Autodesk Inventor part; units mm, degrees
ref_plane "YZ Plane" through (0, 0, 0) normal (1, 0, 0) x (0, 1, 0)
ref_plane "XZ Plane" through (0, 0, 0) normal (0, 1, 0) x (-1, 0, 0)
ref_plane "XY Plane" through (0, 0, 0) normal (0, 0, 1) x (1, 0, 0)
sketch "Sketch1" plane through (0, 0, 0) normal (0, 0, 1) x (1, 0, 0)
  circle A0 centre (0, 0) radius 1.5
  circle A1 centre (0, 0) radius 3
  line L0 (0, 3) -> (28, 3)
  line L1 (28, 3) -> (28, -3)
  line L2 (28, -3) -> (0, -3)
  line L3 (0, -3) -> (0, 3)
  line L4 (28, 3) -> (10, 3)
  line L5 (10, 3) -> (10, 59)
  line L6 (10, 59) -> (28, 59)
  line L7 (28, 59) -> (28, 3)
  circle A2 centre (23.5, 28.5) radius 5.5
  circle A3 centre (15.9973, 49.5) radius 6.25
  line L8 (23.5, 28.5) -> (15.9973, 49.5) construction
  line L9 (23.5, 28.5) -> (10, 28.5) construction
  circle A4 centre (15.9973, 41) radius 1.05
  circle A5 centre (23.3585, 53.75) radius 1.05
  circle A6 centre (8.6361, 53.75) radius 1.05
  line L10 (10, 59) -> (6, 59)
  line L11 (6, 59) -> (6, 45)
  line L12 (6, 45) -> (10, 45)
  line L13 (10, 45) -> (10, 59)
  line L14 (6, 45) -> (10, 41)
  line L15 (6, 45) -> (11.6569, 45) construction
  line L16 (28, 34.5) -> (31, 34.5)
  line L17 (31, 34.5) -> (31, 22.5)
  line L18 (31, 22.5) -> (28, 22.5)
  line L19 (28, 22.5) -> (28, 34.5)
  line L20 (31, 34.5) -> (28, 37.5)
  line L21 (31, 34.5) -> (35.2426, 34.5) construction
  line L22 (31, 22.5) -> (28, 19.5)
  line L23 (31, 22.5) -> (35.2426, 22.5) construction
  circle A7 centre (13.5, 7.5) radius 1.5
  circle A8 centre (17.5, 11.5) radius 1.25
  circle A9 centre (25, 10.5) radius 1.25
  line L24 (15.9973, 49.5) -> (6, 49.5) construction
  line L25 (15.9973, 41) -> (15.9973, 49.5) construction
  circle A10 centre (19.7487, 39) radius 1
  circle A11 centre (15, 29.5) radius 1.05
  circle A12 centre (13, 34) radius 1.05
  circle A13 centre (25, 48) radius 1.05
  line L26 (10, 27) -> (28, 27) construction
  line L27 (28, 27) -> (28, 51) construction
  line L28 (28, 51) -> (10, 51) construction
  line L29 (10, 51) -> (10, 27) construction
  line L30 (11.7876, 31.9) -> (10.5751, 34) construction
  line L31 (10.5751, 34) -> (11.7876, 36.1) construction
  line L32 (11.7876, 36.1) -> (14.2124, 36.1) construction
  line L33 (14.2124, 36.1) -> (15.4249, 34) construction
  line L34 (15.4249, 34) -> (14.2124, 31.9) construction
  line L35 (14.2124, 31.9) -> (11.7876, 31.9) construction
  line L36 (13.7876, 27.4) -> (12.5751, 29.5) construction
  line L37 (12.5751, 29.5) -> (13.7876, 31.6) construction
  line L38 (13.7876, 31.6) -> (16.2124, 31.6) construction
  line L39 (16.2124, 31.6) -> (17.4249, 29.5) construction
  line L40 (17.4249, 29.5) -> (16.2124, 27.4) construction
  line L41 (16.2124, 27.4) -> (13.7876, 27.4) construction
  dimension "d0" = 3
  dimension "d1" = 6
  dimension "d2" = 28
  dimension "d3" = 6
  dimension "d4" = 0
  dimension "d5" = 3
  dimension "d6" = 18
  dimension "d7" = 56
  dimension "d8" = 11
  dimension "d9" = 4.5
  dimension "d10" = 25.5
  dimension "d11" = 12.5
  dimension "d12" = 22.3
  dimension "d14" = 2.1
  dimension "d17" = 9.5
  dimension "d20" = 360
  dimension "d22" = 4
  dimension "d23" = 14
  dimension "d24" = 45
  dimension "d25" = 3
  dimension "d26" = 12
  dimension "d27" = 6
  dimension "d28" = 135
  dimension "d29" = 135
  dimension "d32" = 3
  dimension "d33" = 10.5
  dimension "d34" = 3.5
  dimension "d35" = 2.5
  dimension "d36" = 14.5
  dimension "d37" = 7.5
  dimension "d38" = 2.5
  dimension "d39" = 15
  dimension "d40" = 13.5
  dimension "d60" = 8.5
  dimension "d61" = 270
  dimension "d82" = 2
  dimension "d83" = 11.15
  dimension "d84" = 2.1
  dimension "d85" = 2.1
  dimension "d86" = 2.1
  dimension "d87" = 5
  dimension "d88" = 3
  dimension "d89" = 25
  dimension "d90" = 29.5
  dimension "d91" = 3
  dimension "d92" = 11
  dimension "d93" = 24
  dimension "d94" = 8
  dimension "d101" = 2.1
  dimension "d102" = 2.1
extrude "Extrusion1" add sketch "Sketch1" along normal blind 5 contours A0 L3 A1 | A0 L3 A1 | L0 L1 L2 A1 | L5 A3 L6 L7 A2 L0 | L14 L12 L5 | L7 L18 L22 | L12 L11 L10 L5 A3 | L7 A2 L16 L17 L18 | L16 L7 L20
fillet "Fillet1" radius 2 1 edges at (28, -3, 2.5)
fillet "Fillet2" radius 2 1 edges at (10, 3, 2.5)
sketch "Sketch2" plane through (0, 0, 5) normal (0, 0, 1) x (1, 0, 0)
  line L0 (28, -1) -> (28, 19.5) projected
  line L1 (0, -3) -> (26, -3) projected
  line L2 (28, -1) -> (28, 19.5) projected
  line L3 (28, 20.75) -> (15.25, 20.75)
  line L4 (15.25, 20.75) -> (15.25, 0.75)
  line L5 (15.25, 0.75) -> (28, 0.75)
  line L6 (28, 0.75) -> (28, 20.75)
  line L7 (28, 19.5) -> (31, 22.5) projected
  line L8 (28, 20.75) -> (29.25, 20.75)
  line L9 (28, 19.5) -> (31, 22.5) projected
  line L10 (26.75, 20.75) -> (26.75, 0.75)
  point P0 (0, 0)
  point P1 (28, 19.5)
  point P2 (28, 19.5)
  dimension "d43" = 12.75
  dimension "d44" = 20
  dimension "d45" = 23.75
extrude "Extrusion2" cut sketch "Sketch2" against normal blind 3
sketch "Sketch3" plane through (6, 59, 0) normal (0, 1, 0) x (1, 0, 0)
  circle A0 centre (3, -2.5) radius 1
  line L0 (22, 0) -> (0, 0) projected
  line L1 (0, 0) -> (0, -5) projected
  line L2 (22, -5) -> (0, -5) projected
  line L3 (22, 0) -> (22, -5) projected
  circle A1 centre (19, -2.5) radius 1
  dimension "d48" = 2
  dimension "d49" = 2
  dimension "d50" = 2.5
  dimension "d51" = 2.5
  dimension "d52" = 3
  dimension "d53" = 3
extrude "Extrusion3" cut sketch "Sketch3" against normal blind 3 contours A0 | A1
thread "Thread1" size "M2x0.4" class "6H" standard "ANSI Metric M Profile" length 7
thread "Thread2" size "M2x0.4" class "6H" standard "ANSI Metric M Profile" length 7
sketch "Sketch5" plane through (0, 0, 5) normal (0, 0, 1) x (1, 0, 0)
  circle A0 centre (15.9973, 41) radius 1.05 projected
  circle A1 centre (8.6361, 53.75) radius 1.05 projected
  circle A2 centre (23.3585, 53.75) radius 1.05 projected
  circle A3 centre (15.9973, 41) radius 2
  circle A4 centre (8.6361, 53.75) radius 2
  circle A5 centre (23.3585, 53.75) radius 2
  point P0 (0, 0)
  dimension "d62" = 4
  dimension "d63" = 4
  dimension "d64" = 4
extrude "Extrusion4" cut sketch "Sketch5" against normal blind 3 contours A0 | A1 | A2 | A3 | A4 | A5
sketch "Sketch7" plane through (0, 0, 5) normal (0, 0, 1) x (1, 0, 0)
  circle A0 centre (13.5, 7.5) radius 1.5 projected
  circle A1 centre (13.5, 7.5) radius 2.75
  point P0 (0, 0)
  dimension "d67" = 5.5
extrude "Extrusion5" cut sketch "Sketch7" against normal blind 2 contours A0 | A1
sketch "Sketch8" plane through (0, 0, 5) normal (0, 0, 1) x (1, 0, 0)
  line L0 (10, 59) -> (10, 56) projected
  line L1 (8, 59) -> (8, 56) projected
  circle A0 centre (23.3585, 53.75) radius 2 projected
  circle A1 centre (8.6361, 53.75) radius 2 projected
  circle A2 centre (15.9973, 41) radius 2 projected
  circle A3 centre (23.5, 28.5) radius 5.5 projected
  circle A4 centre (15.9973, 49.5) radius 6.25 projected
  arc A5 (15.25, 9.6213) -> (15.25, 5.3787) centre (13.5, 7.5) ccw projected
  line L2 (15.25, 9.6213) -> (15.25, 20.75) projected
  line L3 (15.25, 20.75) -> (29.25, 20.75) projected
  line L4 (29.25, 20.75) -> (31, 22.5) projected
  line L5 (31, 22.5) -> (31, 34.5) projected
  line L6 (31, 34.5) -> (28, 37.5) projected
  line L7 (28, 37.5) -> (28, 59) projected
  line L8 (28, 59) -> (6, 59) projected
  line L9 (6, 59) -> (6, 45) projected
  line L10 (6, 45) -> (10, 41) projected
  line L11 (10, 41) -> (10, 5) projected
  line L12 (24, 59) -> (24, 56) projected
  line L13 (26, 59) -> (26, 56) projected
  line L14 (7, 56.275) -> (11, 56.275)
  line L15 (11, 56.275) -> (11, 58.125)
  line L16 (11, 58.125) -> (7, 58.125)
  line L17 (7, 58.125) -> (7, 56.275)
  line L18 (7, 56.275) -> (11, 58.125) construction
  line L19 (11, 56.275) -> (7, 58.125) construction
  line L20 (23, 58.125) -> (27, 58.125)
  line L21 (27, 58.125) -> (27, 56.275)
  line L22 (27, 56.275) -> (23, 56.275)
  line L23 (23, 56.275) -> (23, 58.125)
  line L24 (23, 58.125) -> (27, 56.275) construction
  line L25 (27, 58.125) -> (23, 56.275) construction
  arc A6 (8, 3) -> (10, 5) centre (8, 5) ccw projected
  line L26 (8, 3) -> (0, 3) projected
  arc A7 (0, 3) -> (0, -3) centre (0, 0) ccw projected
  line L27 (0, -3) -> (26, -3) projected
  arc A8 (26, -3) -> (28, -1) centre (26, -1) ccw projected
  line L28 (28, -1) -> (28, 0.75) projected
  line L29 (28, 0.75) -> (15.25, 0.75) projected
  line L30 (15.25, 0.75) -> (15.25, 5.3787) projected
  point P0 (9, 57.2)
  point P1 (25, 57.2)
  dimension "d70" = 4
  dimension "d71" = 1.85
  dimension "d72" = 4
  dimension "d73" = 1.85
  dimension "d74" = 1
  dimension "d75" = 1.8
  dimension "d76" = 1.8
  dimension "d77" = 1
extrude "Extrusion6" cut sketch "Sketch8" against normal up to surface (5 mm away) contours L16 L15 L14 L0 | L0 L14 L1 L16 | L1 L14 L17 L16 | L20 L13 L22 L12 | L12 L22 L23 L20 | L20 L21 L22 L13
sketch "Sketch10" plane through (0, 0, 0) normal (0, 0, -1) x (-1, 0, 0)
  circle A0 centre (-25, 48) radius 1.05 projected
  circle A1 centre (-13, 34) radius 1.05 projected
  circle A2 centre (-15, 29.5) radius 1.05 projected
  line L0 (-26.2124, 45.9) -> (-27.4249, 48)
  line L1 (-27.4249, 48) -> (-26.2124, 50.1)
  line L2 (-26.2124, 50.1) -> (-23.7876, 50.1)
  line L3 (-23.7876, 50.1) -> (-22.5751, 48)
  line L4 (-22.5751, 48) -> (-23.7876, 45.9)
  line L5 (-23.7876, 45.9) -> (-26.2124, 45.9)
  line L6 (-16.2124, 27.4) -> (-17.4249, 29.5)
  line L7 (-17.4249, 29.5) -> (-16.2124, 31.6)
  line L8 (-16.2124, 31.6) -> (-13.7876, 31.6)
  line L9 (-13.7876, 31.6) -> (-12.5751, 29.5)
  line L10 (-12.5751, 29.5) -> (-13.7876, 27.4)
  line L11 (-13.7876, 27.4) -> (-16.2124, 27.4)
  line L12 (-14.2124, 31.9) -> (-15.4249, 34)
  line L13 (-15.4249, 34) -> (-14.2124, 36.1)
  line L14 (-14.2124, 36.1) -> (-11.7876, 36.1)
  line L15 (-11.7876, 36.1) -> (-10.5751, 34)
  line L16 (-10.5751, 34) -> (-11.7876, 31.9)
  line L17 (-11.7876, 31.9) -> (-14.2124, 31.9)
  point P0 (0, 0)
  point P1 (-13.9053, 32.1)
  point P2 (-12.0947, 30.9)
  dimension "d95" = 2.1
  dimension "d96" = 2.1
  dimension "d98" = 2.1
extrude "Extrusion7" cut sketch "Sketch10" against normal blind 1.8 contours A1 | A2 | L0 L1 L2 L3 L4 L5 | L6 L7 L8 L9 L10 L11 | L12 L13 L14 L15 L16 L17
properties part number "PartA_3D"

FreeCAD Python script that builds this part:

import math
import FreeCAD as App
import Part
import Sketcher
from FreeCAD import Vector
Q = App.Units.Quantity


def edges_at(feature, points):
    """Names of the edges that pass closest to the given points."""
    edges = feature.Shape.Edges
    near = lambda p: min(range(len(edges)), key=lambda i: edges[i].distToShape(Part.Vertex(*p))[0])
    return sorted({f"Edge{near(p) + 1}" for p in points})


def add_polygon(sketch, points):
    """Adds a closed chain of lines whose ends are joined by coincident constraints."""
    first, n = sketch.GeometryCount, len(points)
    for a, b in zip(points, points[1:] + points[:1]):
        sketch.addGeometry(Part.LineSegment(App.Vector(*a, 0), App.Vector(*b, 0)), False)
    for i in range(n):
        sketch.addConstraint(Sketcher.Constraint("Coincident", first + i, 2, first + (i + 1) % n, 1))

doc = App.newDocument("Part")
body = doc.addObject("PartDesign::Body", "Body")

# Sketch on XY plane
sketch1 = body.newObject("Sketcher::SketchObject", "Sketch")
sketch1.AttachmentSupport = (doc.getObject("XY_Plane"), [""])
sketch1.MapMode = "FlatFace"
sketch1.addGeometry([
    Part.ArcOfCircle(Part.Circle(Vector(0, 0, 0), Vector(0, 0, 1), 3), math.radians(90), math.radians(270)),  # 0
    Part.LineSegment(Vector(0, -3, 0), Vector(28, -3, 0)),  # 1
    Part.LineSegment(Vector(28, -3, 0), Vector(28, 19.5, 0)),  # 2
    Part.LineSegment(Vector(28, 19.5, 0), Vector(31, 22.5, 0)),  # 3
    Part.LineSegment(Vector(31, 22.5, 0), Vector(31, 34.5, 0)),  # 4
    Part.LineSegment(Vector(31, 34.5, 0), Vector(28, 37.5, 0)),  # 5
    Part.LineSegment(Vector(28, 37.5, 0), Vector(28, 59, 0)),  # 6
    Part.LineSegment(Vector(28, 59, 0), Vector(6, 59, 0)),  # 7
    Part.LineSegment(Vector(6, 59, 0), Vector(6, 45, 0)),  # 8
    Part.LineSegment(Vector(6, 45, 0), Vector(10, 41, 0)),  # 9
    Part.LineSegment(Vector(10, 41, 0), Vector(10, 3, 0)),  # 10
    Part.LineSegment(Vector(10, 3, 0), Vector(0, 3, 0)),  # 11
    Part.Circle(Vector(0, 0, 0), Vector(0, 0, 1), 1.5),  # 12
    Part.Circle(Vector(16, 49.5, 0), Vector(0, 0, 1), 6.2),  # 13
    Part.Circle(Vector(23.5, 28.5, 0), Vector(0, 0, 1), 5.5),  # 14
    Part.Circle(Vector(23.4, 53.8, 0), Vector(0, 0, 1), 1.1),  # 15
    Part.Circle(Vector(13.5, 7.5, 0), Vector(0, 0, 1), 1.5),  # 16
    Part.Circle(Vector(17.5, 11.5, 0), Vector(0, 0, 1), 1.2),  # 17
    Part.Circle(Vector(25, 10.5, 0), Vector(0, 0, 1), 1.2),  # 18
    Part.Circle(Vector(13, 34, 0), Vector(0, 0, 1), 1.1),  # 19
    Part.Circle(Vector(15, 29.5, 0), Vector(0, 0, 1), 1.1),  # 20
    Part.Circle(Vector(16, 41, 0), Vector(0, 0, 1), 1.1),  # 21
    Part.Circle(Vector(19.7, 39, 0), Vector(0, 0, 1), 1),  # 22
    Part.Circle(Vector(25, 48, 0), Vector(0, 0, 1), 1.1),  # 23
    Part.Circle(Vector(8.6, 53.8, 0), Vector(0, 0, 1), 1.1),  # 24
], False)
sketch1.addConstraint([
    Sketcher.Constraint("Tangent", 0, 2, 1, 1),
    Sketcher.Constraint("Coincident", 1, 2, 2, 1),
    Sketcher.Constraint("Coincident", 2, 2, 3, 1),
    Sketcher.Constraint("Coincident", 3, 2, 4, 1),
    Sketcher.Constraint("Coincident", 4, 2, 5, 1),
    Sketcher.Constraint("Coincident", 5, 2, 6, 1),
    Sketcher.Constraint("Coincident", 6, 2, 7, 1),
    Sketcher.Constraint("Coincident", 7, 2, 8, 1),
    Sketcher.Constraint("Coincident", 8, 2, 9, 1),
    Sketcher.Constraint("Coincident", 9, 2, 10, 1),
    Sketcher.Constraint("Coincident", 10, 2, 11, 1),
    Sketcher.Constraint("Tangent", 11, 2, 0, 1),
    Sketcher.Constraint("Horizontal", 1),
    Sketcher.Constraint("Vertical", 2),
    Sketcher.Constraint("Vertical", 4),
    Sketcher.Constraint("Vertical", 6),
    Sketcher.Constraint("Horizontal", 7),
    Sketcher.Constraint("Vertical", 8),
    Sketcher.Constraint("Vertical", 10),
    Sketcher.Constraint("Horizontal", 11),
    Sketcher.Constraint("Coincident", 0, 3, -1, 1),
    Sketcher.Constraint("Coincident", 12, 3, -1, 1),
    Sketcher.Constraint("Equal", 12, 16),
    Sketcher.Constraint("Equal", 17, 18),
    Sketcher.Constraint("Equal", 15, 19),
    Sketcher.Constraint("Equal", 19, 20),
    Sketcher.Constraint("Equal", 20, 21),
    Sketcher.Constraint("Equal", 21, 23),
    Sketcher.Constraint("Equal", 23, 24),
    Sketcher.Constraint("Perpendicular", 3, 5),
    Sketcher.Constraint("Parallel", 5, 9),
    Sketcher.Constraint("Horizontal", 15, 3, 24, 3),
    Sketcher.Constraint("Horizontal", 21, 3, 9, 2),
    Sketcher.Constraint("Vertical", 13, 3, 21, 3),
    Sketcher.Constraint("Vertical", 18, 3, 23, 3),
    Sketcher.Constraint("Vertical", 2, 2, 5, 2),
    Sketcher.Constraint("Equal", 3, 5),
    Sketcher.Constraint("Diameter", 12, Q("3 mm")),
    Sketcher.Constraint("Diameter", 14, Q("11 mm")),
    Sketcher.Constraint("Diameter", 22, Q("2 mm")),
    Sketcher.Constraint("Radius", 0, Q("3 mm")),
    Sketcher.Constraint("Diameter", 13, Q("12.5 mm")),
    Sketcher.Constraint("Diameter", 15, Q("2.1 mm")),
    Sketcher.Constraint("Diameter", 17, Q("2.5 mm")),
    Sketcher.Constraint("DistanceX", 1, 1, 1, 2, Q("28 mm")),
    Sketcher.Constraint("DistanceY", 4, 1, 4, 2, Q("12 mm")),
    Sketcher.Constraint("DistanceY", 8, 2, 8, 1, Q("14 mm")),
    Sketcher.Constraint("DistanceX", -1, 1, 18, 3, Q("25 mm")),
    Sketcher.Constraint("DistanceX", -1, 1, 20, 3, Q("15 mm")),
    Sketcher.Constraint("DistanceX", -1, 1, 7, 2, Q("6 mm")),
    Sketcher.Constraint("DistanceY", -1, 1, 8, 2, Q("45 mm")),
    Sketcher.Constraint("DistanceX", 16, 3, 17, 3, Q("4 mm")),
    Sketcher.Constraint("DistanceY", 16, 3, 17, 3, Q("4 mm")),
    Sketcher.Constraint("DistanceX", 17, 3, 14, 3, Q("6 mm")),
    Sketcher.Constraint("DistanceY", 16, 3, 18, 3, Q("3 mm")),
    Sketcher.Constraint("DistanceY", 18, 3, 14, 3, Q("18 mm")),
    Sketcher.Constraint("DistanceX", 19, 3, 18, 3, Q("12 mm")),
    Sketcher.Constraint("DistanceY", 17, 3, 20, 3, Q("18 mm")),
    Sketcher.Constraint("DistanceY", 22, 3, 21, 3, Q("2 mm")),
    Sketcher.Constraint("DistanceY", 19, 3, 22, 3, Q("5 mm")),
    Sketcher.Constraint("DistanceY", 19, 3, 23, 3, Q("14 mm")),
    Sketcher.Constraint("DistanceY", 17, 3, 2, 2, Q("8 mm")),
    Sketcher.Constraint("DistanceX", 2, 2, 3, 2, Q("3 mm")),
    Sketcher.Constraint("DistanceY", 23, 3, 6, 2, Q("11 mm")),
    Sketcher.Constraint("DistanceX", -1, 1, 16, 3, Q("13.5 mm")),
    Sketcher.Constraint("DistanceY", -1, 1, 16, 3, Q("7.5 mm")),
    Sketcher.Constraint("DistanceY", 21, 3, 13, 3, Q("8.5 mm")),
    Sketcher.Constraint("DistanceY", -1, 1, 15, 3, Q("53.75 mm")),
    Sketcher.Constraint("DistanceX", -1, 1, 24, 3, Q("8.636 mm")),
    Sketcher.Constraint("DistanceX", -1, 1, 13, 3, Q("15.9973 mm")),
    Sketcher.Constraint("DistanceX", -1, 1, 15, 3, Q("23.3585 mm")),
    Sketcher.Constraint("DistanceX", -1, 1, 22, 3, Q("19.7487 mm")),
])
pad1 = body.newObject("PartDesign::Pad", "Pad")
pad1.Profile = sketch1
pad1.Length = 5
doc.recompute()

fillet = body.newObject("PartDesign::Fillet", "Fillet")
fillet.Base = (pad1, edges_at(pad1, [(28, -3, 2.5)]))
fillet.Radius = 2
doc.recompute()

fillet2 = body.newObject("PartDesign::Fillet", "Fillet001")
fillet2.Base = (fillet, edges_at(fillet, [(10, 3, 2.5)]))
fillet2.Radius = 2

# Sketch on XY plane
sketch2 = body.newObject("Sketcher::SketchObject", "Sketch001")
sketch2.AttachmentSupport = (doc.getObject("XY_Plane"), [""])
sketch2.MapMode = "FlatFace"
sketch2.AttachmentOffset = App.Placement(Vector(0, 0, 5), App.Rotation())
add_polygon(sketch2, [(28, 0.8), (28, 19.5), (29.2, 20.8), (15.2, 20.8), (15.2, 0.8)])  # lines 0-4
sketch2.addConstraint([
    Sketcher.Constraint("Vertical", 0),
    Sketcher.Constraint("Horizontal", 2),
    Sketcher.Constraint("Vertical", 3),
    Sketcher.Constraint("Horizontal", 4),
    Sketcher.Constraint("DistanceY", 3, 2, 3, 1, Q("20 mm")),
    Sketcher.Constraint("DistanceX", 4, 1, 4, 2, Q("12.75 mm")),
    Sketcher.Constraint("DistanceX", 2, 2, 2, 1, Q("14 mm")),
    Sketcher.Constraint("Angle", 1, Q("45 deg")),
    Sketcher.Constraint("DistanceX", -1, 1, 0, 2, Q("28 mm")),
    Sketcher.Constraint("DistanceY", -1, 1, 0, 2, Q("19.5 mm")),
])
pocket1 = body.newObject("PartDesign::Pocket", "Pocket")
pocket1.Profile = sketch2
pocket1.Length = 3

# Sketch on XZ plane
sketch3 = body.newObject("Sketcher::SketchObject", "Sketch002")
sketch3.AttachmentSupport = (doc.getObject("XZ_Plane"), [""])
sketch3.MapMode = "FlatFace"
sketch3.AttachmentOffset = App.Placement(Vector(0, 0, -59), App.Rotation())
sketch3.addGeometry([
    Part.Circle(Vector(9, 2.5, 0), Vector(0, 0, 1), 1),
    Part.Circle(Vector(25, 2.5, 0), Vector(0, 0, 1), 1),
], False)
sketch3.addConstraint([
    Sketcher.Constraint("Equal", 0, 1),
    Sketcher.Constraint("Horizontal", 0, 3, 1, 3),
    Sketcher.Constraint("Diameter", 0, Q("2 mm")),
    Sketcher.Constraint("DistanceY", -1, 1, 0, 3, Q("2.5 mm")),
    Sketcher.Constraint("DistanceX", -1, 1, 0, 3, Q("9 mm")),
    Sketcher.Constraint("DistanceX", -1, 1, 1, 3, Q("25 mm")),
])
pocket2 = body.newObject("PartDesign::Pocket", "Pocket001")
pocket2.Profile = sketch3
pocket2.Length = 3
pocket2.Reversed = True

# Sketch on XY plane
sketch4 = body.newObject("Sketcher::SketchObject", "Sketch003")
sketch4.AttachmentSupport = (doc.getObject("XY_Plane"), [""])
sketch4.MapMode = "FlatFace"
sketch4.AttachmentOffset = App.Placement(Vector(0, 0, 5), App.Rotation())
sketch4.addGeometry([
    Part.Circle(Vector(16, 41, 0), Vector(0, 0, 1), 2),
    Part.Circle(Vector(8.6, 53.8, 0), Vector(0, 0, 1), 2),
    Part.Circle(Vector(23.4, 53.8, 0), Vector(0, 0, 1), 2),
], False)
sketch4.addConstraint([
    Sketcher.Constraint("Equal", 0, 1),
    Sketcher.Constraint("Equal", 1, 2),
    Sketcher.Constraint("Horizontal", 1, 3, 2, 3),
    Sketcher.Constraint("Diameter", 0, Q("4 mm")),
    Sketcher.Constraint("DistanceY", -1, 1, 0, 3, Q("41 mm")),
    Sketcher.Constraint("DistanceY", -1, 1, 1, 3, Q("53.75 mm")),
    Sketcher.Constraint("DistanceX", -1, 1, 1, 3, Q("8.636 mm")),
    Sketcher.Constraint("DistanceX", -1, 1, 0, 3, Q("15.9973 mm")),
    Sketcher.Constraint("DistanceX", -1, 1, 2, 3, Q("23.3585 mm")),
])
pocket3 = body.newObject("PartDesign::Pocket", "Pocket002")
pocket3.Profile = sketch4
pocket3.Length = 3

# Sketch on XY plane
sketch5 = body.newObject("Sketcher::SketchObject", "Sketch004")
sketch5.AttachmentSupport = (doc.getObject("XY_Plane"), [""])
sketch5.MapMode = "FlatFace"
sketch5.AttachmentOffset = App.Placement(Vector(0, 0, 5), App.Rotation())
sketch5.addGeometry(Part.Circle(Vector(13.5, 7.5, 0), Vector(0, 0, 1), 2.8), False)
sketch5.addConstraint([
    Sketcher.Constraint("Diameter", 0, Q("5.5 mm")),
    Sketcher.Constraint("DistanceX", -1, 1, 0, 3, Q("13.5 mm")),
    Sketcher.Constraint("DistanceY", -1, 1, 0, 3, Q("7.5 mm")),
])
pocket4 = body.newObject("PartDesign::Pocket", "Pocket003")
pocket4.Profile = sketch5
pocket4.Length = 2

# Sketch on XY plane
sketch6 = body.newObject("Sketcher::SketchObject", "Sketch005")
sketch6.AttachmentSupport = (doc.getObject("XY_Plane"), [""])
sketch6.MapMode = "FlatFace"
sketch6.AttachmentOffset = App.Placement(Vector(0, 0, 5), App.Rotation())
add_polygon(sketch6, [(11, 58.1), (7, 58.1), (7, 56.3), (11, 56.3)])  # lines 0-3
add_polygon(sketch6, [(23, 58.1), (23, 56.3), (27, 56.3), (27, 58.1)])  # lines 4-7
sketch6.addConstraint([
    Sketcher.Constraint("Horizontal", 0),
    Sketcher.Constraint("Vertical", 1),
    Sketcher.Constraint("Horizontal", 2),
    Sketcher.Constraint("Vertical", 3),
    Sketcher.Constraint("Vertical", 4),
    Sketcher.Constraint("Horizontal", 5),
    Sketcher.Constraint("Vertical", 6),
    Sketcher.Constraint("Horizontal", 7),
    Sketcher.Constraint("Horizontal", 2, 2, 4, 2),
    Sketcher.Constraint("Horizontal", 3, 2, 6, 2),
    Sketcher.Constraint("Equal", 2, 5),
    Sketcher.Constraint("DistanceX", 0, 2, 0, 1, Q("4 mm")),
    Sketcher.Constraint("DistanceY", 1, 2, 1, 1, Q("1.85 mm")),
    Sketcher.Constraint("DistanceX", -1, 1, 0, 2, Q("7 mm")),
    Sketcher.Constraint("DistanceX", -1, 1, 4, 2, Q("23 mm")),
    Sketcher.Constraint("DistanceY", -1, 1, 0, 2, Q("58.125 mm")),
])
pocket5 = body.newObject("PartDesign::Pocket", "Pocket004")
pocket5.Profile = sketch6
pocket5.Length = 5

# Sketch on XY plane
sketch7 = body.newObject("Sketcher::SketchObject", "Sketch006")
sketch7.AttachmentSupport = (doc.getObject("XY_Plane"), [""])
sketch7.MapMode = "FlatFace"
add_polygon(sketch7, [(15.4, 34), (14.2, 31.9), (11.8, 31.9), (10.6, 34), (11.8, 36.1), (14.2, 36.1)])  # lines 0-5
add_polygon(sketch7, [(17.4, 29.5), (16.2, 27.4), (13.8, 27.4), (12.6, 29.5), (13.8, 31.6), (16.2, 31.6)])  # lines 6-11
add_polygon(sketch7, [(27.4, 48), (26.2, 45.9), (23.8, 45.9), (22.6, 48), (23.8, 50.1), (26.2, 50.1)])  # lines 12-17
sketch7.addGeometry(Part.Circle(Vector(25, 48, 0), Vector(0, 0, 1), 1.1), False)  # 18
sketch7.addConstraint([
    Sketcher.Constraint("Horizontal", 1),
    Sketcher.Constraint("Horizontal", 4),
    Sketcher.Constraint("Horizontal", 7),
    Sketcher.Constraint("Horizontal", 10),
    Sketcher.Constraint("Horizontal", 13),
    Sketcher.Constraint("Horizontal", 16),
    Sketcher.Constraint("Parallel", 0, 3),
    Sketcher.Constraint("Parallel", 2, 5),
    Sketcher.Constraint("Parallel", 3, 6),
    Sketcher.Constraint("Parallel", 5, 8),
    Sketcher.Constraint("Parallel", 6, 9),
    Sketcher.Constraint("Parallel", 8, 11),
    Sketcher.Constraint("Parallel", 9, 12),
    Sketcher.Constraint("Parallel", 11, 14),
    Sketcher.Constraint("Parallel", 12, 15),
    Sketcher.Constraint("Parallel", 14, 17),
    Sketcher.Constraint("Horizontal", 2, 2, 5, 2),
    Sketcher.Constraint("Horizontal", 8, 2, 11, 2),
    Sketcher.Constraint("Horizontal", 18, 3, 14, 2),
    Sketcher.Constraint("Horizontal", 14, 2, 17, 2),
    Sketcher.Constraint("Vertical", 1, 2, 3, 2),
    Sketcher.Constraint("Vertical", 0, 2, 4, 2),
    Sketcher.Constraint("Vertical", 7, 2, 9, 2),
    Sketcher.Constraint("Vertical", 13, 2, 15, 2),
    Sketcher.Constraint("Equal", 4, 7),
    Sketcher.Constraint("Equal", 10, 13),
    Sketcher.Constraint("Equal", 5, 6),
    Sketcher.Constraint("Equal", 11, 12),
    Sketcher.Constraint("Diameter", 18, Q("2.1 mm")),
    Sketcher.Constraint("DistanceY", 1, 2, 2, 2, Q("2.1 mm")),
    Sketcher.Constraint("DistanceX", -1, 1, 18, 3, Q("25 mm")),
    Sketcher.Constraint("DistanceY", -1, 1, 18, 3, Q("48 mm")),
    Sketcher.Constraint("DistanceY", -1, 1, 2, 2, Q("34 mm")),
    Sketcher.Constraint("DistanceX", 0, 2, 6, 2, Q("2 mm")),
    Sketcher.Constraint("DistanceX", 4, 2, 12, 2, Q("12 mm")),
    Sketcher.Constraint("DistanceY", -1, 1, 6, 2, Q("27.4 mm")),
    Sketcher.Constraint("Distance", 0, Q("2.425 mm")),
    Sketcher.Constraint("DistanceX", 1, 2, 1, 1, Q("2.4248 mm")),
    Sketcher.Constraint("DistanceX", -1, 1, 2, 2, Q("10.575 mm")),
])
pocket6 = body.newObject("PartDesign::Pocket", "Pocket005")
pocket6.Profile = sketch7
pocket6.Length = 1.8
pocket6.Reversed = True

doc.recompute()
